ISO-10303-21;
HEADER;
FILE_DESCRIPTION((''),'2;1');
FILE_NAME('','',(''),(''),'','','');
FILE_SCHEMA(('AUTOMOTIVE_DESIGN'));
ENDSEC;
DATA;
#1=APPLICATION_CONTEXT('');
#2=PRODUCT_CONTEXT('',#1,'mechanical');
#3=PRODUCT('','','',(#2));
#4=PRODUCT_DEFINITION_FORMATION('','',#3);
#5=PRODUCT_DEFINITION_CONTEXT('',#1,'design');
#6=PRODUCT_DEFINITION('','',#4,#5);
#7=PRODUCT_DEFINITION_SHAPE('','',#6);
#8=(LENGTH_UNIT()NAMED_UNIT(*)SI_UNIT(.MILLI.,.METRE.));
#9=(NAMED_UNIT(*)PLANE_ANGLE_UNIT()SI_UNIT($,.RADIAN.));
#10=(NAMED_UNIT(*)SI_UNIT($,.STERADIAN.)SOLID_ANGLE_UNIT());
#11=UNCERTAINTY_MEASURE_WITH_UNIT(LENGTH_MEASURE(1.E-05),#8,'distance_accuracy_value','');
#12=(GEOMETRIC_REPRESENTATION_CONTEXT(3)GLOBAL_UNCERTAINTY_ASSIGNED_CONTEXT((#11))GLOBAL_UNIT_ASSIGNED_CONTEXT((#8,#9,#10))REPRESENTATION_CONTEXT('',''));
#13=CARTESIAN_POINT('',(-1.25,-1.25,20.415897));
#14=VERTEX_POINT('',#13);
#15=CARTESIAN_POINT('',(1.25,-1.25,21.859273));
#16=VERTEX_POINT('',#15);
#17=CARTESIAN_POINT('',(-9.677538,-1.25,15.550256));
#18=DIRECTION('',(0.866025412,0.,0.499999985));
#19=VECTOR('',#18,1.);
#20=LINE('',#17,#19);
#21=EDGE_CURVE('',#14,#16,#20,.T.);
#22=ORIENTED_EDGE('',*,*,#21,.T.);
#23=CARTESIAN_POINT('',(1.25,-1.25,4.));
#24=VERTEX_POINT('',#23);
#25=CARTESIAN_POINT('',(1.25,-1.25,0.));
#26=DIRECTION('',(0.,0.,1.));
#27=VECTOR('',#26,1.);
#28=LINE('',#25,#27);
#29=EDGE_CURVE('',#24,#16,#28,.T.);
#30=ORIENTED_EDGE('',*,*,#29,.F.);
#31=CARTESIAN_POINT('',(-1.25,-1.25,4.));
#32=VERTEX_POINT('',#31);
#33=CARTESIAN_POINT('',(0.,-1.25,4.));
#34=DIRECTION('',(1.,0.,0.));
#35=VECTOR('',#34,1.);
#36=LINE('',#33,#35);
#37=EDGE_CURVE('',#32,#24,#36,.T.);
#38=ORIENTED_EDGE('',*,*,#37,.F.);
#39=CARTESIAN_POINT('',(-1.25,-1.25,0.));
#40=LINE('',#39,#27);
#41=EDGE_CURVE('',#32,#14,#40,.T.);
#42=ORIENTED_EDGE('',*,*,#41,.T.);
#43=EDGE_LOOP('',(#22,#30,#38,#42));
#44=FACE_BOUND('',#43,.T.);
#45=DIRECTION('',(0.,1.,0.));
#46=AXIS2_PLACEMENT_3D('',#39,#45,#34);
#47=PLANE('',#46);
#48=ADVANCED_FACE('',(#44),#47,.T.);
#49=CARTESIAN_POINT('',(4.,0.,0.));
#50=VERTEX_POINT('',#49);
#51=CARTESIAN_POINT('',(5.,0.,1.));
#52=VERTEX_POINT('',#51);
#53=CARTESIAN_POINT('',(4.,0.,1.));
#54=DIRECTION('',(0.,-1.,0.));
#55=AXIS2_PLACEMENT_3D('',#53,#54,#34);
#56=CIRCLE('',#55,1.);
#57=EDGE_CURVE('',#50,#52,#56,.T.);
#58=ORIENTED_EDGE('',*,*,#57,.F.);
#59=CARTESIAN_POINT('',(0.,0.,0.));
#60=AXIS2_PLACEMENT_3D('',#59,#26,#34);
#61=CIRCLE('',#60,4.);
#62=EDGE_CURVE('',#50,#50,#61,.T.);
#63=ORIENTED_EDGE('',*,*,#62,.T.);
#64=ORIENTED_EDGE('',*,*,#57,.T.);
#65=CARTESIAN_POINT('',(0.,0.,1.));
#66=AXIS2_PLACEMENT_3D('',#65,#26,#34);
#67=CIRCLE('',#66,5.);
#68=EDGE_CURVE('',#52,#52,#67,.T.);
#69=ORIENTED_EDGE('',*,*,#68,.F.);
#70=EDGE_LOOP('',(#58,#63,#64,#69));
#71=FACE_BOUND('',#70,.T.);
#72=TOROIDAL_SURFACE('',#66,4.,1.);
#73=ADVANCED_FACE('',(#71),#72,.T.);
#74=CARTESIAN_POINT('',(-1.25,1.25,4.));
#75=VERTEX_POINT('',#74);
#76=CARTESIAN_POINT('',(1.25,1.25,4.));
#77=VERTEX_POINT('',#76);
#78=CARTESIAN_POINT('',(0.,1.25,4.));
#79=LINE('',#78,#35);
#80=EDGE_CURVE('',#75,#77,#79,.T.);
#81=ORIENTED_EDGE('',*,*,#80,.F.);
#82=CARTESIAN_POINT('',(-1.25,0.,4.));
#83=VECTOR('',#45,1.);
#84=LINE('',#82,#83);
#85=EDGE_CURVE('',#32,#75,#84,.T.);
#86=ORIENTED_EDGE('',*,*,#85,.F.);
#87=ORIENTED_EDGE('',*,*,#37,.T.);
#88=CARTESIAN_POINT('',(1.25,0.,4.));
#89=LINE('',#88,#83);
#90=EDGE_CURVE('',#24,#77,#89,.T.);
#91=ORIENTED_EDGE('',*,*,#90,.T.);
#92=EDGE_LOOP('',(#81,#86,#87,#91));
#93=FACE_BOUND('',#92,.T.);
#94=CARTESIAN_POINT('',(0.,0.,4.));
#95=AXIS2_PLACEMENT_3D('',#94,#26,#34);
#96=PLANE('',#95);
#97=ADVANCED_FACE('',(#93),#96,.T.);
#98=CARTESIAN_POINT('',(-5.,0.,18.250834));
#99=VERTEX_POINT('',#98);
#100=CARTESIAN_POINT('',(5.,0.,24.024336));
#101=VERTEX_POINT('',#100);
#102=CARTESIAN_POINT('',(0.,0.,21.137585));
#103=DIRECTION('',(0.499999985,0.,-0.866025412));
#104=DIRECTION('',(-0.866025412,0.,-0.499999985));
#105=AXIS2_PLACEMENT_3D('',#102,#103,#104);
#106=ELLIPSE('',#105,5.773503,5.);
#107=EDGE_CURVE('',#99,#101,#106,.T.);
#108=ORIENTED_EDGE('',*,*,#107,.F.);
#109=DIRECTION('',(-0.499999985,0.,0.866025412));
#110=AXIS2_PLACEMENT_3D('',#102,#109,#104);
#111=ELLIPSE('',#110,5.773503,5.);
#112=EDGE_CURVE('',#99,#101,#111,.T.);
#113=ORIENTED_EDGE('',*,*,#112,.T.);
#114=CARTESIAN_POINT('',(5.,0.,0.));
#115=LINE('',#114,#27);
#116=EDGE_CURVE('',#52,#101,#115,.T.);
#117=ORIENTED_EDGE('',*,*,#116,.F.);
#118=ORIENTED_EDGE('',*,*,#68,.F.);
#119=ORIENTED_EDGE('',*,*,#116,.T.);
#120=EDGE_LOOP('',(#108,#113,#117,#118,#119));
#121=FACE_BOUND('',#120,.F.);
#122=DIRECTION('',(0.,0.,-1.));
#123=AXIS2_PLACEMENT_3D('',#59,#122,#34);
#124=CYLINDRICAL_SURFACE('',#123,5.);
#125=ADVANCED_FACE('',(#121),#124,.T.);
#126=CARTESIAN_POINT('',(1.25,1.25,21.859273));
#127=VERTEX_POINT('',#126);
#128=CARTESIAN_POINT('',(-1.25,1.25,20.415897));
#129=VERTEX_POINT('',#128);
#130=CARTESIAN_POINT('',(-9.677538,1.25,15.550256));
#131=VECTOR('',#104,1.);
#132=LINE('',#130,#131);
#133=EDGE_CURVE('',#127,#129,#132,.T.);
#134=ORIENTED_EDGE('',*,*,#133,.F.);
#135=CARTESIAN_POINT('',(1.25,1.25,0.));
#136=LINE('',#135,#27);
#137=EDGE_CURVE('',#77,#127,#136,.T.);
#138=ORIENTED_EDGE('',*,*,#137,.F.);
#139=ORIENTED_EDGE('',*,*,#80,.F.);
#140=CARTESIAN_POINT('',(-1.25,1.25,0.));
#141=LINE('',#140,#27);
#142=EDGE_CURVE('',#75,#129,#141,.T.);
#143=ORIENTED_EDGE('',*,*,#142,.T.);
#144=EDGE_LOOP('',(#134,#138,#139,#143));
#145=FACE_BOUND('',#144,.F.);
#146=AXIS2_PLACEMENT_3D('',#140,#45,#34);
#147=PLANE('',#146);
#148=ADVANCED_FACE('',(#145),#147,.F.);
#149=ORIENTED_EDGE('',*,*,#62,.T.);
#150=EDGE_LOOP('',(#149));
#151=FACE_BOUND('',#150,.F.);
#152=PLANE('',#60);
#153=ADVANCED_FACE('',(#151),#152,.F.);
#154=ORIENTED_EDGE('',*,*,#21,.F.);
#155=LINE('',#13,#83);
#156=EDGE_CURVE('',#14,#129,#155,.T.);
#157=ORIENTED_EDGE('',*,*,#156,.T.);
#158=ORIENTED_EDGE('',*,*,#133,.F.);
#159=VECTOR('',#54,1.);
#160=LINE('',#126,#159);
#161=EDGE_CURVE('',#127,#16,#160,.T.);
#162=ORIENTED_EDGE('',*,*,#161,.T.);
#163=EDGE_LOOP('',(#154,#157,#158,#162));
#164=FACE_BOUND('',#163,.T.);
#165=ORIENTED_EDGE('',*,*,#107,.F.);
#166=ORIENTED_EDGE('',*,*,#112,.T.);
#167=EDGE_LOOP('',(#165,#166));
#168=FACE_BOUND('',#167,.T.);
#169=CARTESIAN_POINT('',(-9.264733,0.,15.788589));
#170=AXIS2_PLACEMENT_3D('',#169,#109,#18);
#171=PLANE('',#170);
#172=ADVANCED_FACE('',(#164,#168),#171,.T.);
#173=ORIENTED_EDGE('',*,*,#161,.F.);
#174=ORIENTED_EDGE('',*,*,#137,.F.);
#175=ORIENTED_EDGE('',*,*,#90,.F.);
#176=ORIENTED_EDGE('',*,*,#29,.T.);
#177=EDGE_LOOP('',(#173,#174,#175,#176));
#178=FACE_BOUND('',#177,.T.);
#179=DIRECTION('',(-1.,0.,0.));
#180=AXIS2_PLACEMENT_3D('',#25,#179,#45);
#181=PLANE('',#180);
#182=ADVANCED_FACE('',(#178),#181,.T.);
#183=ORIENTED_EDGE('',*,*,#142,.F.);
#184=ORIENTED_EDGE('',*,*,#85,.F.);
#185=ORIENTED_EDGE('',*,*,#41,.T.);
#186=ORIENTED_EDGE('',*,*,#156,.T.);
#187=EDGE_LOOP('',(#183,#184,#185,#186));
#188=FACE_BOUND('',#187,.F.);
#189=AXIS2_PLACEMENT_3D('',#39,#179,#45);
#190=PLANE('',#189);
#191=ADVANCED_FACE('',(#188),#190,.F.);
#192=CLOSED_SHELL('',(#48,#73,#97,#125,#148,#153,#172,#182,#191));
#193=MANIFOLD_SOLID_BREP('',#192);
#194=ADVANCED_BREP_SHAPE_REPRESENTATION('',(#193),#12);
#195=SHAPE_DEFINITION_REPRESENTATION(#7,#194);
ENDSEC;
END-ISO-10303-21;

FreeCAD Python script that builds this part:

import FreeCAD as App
import Part
import Sketcher
from FreeCAD import Vector
Q = App.Units.Quantity


def edges_at(feature, points):
    """Names of the edges that pass closest to the given points."""
    edges = feature.Shape.Edges
    near = lambda p: min(range(len(edges)), key=lambda i: edges[i].distToShape(Part.Vertex(*p))[0])
    return sorted({f"Edge{near(p) + 1}" for p in points})


def add_polygon(sketch, points):
    """Adds a closed chain of lines whose ends are joined by coincident constraints."""
    first, n = sketch.GeometryCount, len(points)
    for a, b in zip(points, points[1:] + points[:1]):
        sketch.addGeometry(Part.LineSegment(App.Vector(*a, 0), App.Vector(*b, 0)), False)
    for i in range(n):
        sketch.addConstraint(Sketcher.Constraint("Coincident", first + i, 2, first + (i + 1) % n, 1))

doc = App.newDocument("Part")
params = doc.addObject("Spreadsheet::Sheet", "Params")
for row, (alias, value) in enumerate([
    ("sketch1_diameter", "10 mm"),
    ("sketch1_width", "2.5 mm"),
    ("pad1_length", "25 mm"),
    ("sketch2_width", "2.5 mm"),
    ("pad2_length", "4 mm"),
    ("fillet_radius", "1 mm"),
], start=1):
    params.set(f"A{row}", alias)
    params.set(f"B{row}", "=" + value)
    params.setAlias(f"B{row}", alias)

body = doc.addObject("PartDesign::Body", "Body")

# Sketch on XY plane
sketch1 = body.newObject("Sketcher::SketchObject", "Sketch")
sketch1.AttachmentSupport = (doc.getObject("XY_Plane"), [""])
sketch1.MapMode = "FlatFace"
sketch1.addGeometry(Part.Circle(Vector(0, 0, 0), Vector(0, 0, 1), 5), False)  # 0
add_polygon(sketch1, [(1.2, -1.2), (-1.2, -1.2), (-1.2, 1.2), (1.2, 1.2)])  # lines 1-4
sketch1.addConstraint([
    Sketcher.Constraint("Horizontal", 1),
    Sketcher.Constraint("Vertical", 2),
    Sketcher.Constraint("Horizontal", 3),
    Sketcher.Constraint("Vertical", 4),
    Sketcher.Constraint("Coincident", 0, 3, -1, 1),
    Sketcher.Constraint("Symmetric", 1, 2, 3, 2, -1, 1),
    Sketcher.Constraint("Equal", 3, 2),
    Sketcher.Constraint("Diameter", 0, 10.0),
    Sketcher.Constraint("DistanceX", 1, 2, 1, 1, 2.5),
])
sketch1.setExpression("Constraints[11]", "Params.sketch1_diameter")
sketch1.setExpression("Constraints[12]", "Params.sketch1_width")
pad1 = body.newObject("PartDesign::Pad", "Pad")
pad1.Profile = sketch1
pad1.setExpression("Length", "Params.pad1_length")

# Sketch on XY plane
sketch2 = body.newObject("Sketcher::SketchObject", "Sketch001")
sketch2.AttachmentSupport = (doc.getObject("XY_Plane"), [""])
sketch2.MapMode = "FlatFace"
add_polygon(sketch2, [(-1.2, 1.2), (-1.2, -1.2), (1.2, -1.2), (1.2, 1.2)])  # lines 0-3
sketch2.addConstraint([
    Sketcher.Constraint("Vertical", 0),
    Sketcher.Constraint("Horizontal", 1),
    Sketcher.Constraint("Vertical", 2),
    Sketcher.Constraint("Horizontal", 3),
    Sketcher.Constraint("Symmetric", 0, 2, 2, 2, -1, 1),
    Sketcher.Constraint("Equal", 3, 0),
    Sketcher.Constraint("DistanceX", 1, 1, 1, 2, 2.5),
])
sketch2.setExpression("Constraints[10]", "Params.sketch2_width")
pad2 = body.newObject("PartDesign::Pad", "Pad001")
pad2.Profile = sketch2
pad2.setExpression("Length", "Params.pad2_length")
doc.recompute()

fillet = body.newObject("PartDesign::Fillet", "Fillet")
fillet.Base = (pad2, edges_at(pad2, [(-5, 0, 0)]))
fillet.setExpression("Radius", "Params.fillet_radius")

# Sketch on XZ plane
sketch3 = body.newObject("Sketcher::SketchObject", "Sketch002")
sketch3.AttachmentSupport = (doc.getObject("XZ_Plane"), [""])
sketch3.MapMode = "FlatFace"
add_polygon(sketch3, [(-9, 30), (-9, 16), (13, 29), (-4, 35)])  # lines 0-3
sketch3.addConstraint([
    Sketcher.Constraint("Vertical", 0),
    Sketcher.Constraint("Angle", 1, Q("29.999999 deg")),
    Sketcher.Constraint("DistanceY", 0, 2, 0, 1, 14.404418),
    Sketcher.Constraint("Distance", 1, 25.558211),
    Sketcher.Constraint("Distance", 3, 7.614761),
    Sketcher.Constraint("DistanceY", -1, 1, 0, 2, 15.788589),
    Sketcher.Constraint("DistanceX", 2, 2, 1, 2, 16.43679),
    Sketcher.Constraint("DistanceX", 0, 2, -1, 1, 9.264733),
])
pocket1 = body.newObject("PartDesign::Pocket", "Pocket")
pocket1.Profile = sketch3
pocket1.Type = "ThroughAll"
pocket1.Midplane = True

doc.recompute()
